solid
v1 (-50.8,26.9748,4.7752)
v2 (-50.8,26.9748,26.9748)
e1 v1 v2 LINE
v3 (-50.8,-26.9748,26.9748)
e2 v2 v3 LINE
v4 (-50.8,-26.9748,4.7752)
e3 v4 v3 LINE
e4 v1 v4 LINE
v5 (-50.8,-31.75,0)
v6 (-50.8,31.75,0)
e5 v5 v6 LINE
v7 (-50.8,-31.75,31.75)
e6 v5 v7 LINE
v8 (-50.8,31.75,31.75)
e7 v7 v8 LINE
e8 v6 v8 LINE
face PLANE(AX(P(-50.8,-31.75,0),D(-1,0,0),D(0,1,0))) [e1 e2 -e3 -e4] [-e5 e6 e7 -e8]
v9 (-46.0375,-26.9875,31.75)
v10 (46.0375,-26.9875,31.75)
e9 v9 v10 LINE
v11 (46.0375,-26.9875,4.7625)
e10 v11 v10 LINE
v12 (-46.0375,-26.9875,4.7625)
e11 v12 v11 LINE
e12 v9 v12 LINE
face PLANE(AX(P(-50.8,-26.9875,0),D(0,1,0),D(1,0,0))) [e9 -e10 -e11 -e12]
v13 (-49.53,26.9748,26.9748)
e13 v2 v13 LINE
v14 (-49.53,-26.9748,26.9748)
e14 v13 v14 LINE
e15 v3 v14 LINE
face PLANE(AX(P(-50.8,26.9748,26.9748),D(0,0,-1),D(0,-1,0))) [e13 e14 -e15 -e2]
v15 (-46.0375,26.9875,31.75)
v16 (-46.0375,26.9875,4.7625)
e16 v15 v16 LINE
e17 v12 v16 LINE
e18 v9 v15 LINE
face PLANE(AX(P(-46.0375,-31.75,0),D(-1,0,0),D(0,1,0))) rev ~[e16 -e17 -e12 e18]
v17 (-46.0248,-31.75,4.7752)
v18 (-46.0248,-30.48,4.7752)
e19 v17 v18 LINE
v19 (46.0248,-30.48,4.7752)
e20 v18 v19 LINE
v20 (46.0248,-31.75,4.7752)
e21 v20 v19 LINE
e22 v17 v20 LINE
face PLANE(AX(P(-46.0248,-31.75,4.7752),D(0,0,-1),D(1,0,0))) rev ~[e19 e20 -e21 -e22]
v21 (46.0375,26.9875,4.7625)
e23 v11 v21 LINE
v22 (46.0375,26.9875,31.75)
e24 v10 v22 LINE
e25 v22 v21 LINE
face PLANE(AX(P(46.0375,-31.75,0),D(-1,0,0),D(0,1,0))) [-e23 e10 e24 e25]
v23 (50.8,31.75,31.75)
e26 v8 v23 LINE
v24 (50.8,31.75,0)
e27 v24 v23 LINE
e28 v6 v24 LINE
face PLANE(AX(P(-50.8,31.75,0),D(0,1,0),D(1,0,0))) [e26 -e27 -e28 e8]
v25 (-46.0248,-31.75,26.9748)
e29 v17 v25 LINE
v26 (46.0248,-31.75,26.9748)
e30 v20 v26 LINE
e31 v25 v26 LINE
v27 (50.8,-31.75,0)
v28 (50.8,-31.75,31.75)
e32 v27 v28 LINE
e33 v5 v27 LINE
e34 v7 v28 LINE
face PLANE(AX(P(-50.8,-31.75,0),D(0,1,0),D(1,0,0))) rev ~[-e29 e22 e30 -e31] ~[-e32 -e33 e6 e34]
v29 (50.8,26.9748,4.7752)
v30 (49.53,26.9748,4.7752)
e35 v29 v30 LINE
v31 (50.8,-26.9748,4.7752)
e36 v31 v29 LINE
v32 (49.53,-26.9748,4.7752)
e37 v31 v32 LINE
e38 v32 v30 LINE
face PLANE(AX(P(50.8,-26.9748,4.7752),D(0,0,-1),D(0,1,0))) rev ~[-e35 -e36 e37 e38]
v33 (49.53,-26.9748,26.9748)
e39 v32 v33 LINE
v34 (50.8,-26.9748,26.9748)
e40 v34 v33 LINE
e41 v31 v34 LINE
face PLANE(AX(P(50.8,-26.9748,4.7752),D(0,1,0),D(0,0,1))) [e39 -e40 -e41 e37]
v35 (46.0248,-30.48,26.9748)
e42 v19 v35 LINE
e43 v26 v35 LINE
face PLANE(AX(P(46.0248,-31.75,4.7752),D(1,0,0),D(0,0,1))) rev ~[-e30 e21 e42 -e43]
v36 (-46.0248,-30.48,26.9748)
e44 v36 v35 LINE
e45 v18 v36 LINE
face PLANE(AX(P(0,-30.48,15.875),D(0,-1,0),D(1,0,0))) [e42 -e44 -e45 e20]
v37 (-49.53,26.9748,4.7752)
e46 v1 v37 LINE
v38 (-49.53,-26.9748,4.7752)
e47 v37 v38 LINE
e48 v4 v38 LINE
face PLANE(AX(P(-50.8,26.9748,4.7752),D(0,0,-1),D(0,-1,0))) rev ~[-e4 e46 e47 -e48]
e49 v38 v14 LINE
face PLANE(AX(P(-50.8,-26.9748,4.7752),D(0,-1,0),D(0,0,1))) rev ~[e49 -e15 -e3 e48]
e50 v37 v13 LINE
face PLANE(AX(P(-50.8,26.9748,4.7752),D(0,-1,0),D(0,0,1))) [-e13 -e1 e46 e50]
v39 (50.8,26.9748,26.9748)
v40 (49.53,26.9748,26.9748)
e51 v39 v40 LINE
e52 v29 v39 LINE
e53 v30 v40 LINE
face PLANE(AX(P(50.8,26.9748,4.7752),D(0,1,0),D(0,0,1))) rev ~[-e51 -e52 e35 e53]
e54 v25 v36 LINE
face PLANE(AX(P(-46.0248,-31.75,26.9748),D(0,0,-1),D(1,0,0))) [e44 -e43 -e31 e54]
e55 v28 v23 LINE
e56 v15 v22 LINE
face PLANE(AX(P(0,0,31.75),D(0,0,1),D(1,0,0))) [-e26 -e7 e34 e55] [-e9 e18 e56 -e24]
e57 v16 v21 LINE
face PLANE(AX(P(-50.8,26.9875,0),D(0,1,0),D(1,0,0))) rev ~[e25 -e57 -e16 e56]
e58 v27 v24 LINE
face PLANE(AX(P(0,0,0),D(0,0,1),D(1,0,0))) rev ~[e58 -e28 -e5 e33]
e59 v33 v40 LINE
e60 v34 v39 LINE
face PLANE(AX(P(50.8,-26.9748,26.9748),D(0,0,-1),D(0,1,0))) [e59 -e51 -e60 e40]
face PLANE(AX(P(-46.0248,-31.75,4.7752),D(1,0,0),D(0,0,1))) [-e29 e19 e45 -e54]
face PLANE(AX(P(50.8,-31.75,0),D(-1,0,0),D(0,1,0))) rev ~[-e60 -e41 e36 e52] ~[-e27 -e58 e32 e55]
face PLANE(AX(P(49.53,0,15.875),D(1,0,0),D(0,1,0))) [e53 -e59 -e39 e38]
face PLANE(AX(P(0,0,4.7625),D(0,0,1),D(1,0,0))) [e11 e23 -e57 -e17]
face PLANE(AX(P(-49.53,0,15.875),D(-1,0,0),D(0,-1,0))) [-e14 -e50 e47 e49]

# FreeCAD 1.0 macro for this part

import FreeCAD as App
import Part
import Sketcher

V = App.Vector
Q = App.Units.Quantity


def faces_at(feature, points):
    """Names of the faces that lie closest to the given points."""
    faces = feature.Shape.Faces
    near = lambda p: min(range(len(faces)), key=lambda i: faces[i].distToShape(Part.Vertex(*p))[0])
    return sorted({f"Face{near(p) + 1}" for p in points})


def add_polygon(sketch, points):
    """Adds a closed chain of lines whose ends are joined by coincident constraints."""
    first, n = sketch.GeometryCount, len(points)
    for a, b in zip(points, points[1:] + points[:1]):
        sketch.addGeometry(Part.LineSegment(App.Vector(*a, 0), App.Vector(*b, 0)), False)
    for i in range(n):
        sketch.addConstraint(Sketcher.Constraint("Coincident", first + i, 2, first + (i + 1) % n, 1))

doc = App.newDocument("Part")
body = doc.addObject("PartDesign::Body", "Body")

sketch1 = doc.addObject("Sketcher::SketchObject", "Sketch")
body.addObject(sketch1)
sketch1.AttachmentSupport = (doc.XY_Plane, [""])
sketch1.MapMode = "FlatFace"
add_polygon(sketch1, [(-50.8, 31.75), (-50.8, -31.75), (50.8, -31.75), (50.8, 31.75)])
sketch1.addConstraint(Sketcher.Constraint("Vertical", 0))
sketch1.addConstraint(Sketcher.Constraint("Horizontal", 1))
sketch1.addConstraint(Sketcher.Constraint("Vertical", 2))
sketch1.addConstraint(Sketcher.Constraint("Horizontal", 3))
sketch1.addConstraint(Sketcher.Constraint("Symmetric", 0, 2, 2, 2, -1, 1))
sketch1.addConstraint(Sketcher.Constraint("DistanceX", 1, 1, 1, 2, Q("4 in")))
sketch1.addConstraint(Sketcher.Constraint("DistanceY", 0, 2, 0, 1, Q("2.5 in")))
pad1 = doc.addObject("PartDesign::Pad", "Pad")
body.addObject(pad1)
pad1.Profile = sketch1
pad1.Length = Q("1.25 in")
doc.recompute()

thickness = doc.addObject("PartDesign::Thickness", "Thickness")
body.addObject(thickness)
thickness.Base = (pad1, faces_at(pad1, [(0, 0, 31.75)]))
thickness.Value = Q("0.1875 in")
thickness.Reversed = True
thickness.Join = "Arc"

sketch2 = doc.addObject("Sketcher::SketchObject", "Sketch001")
body.addObject(sketch2)
sketch2.AttachmentSupport = (doc.YZ_Plane, [""])
sketch2.MapMode = "FlatFace"
sketch2.AttachmentOffset = App.Placement(V(0, 0, 2 * 25.4), App.Rotation())
add_polygon(sketch2, [(-26.9748, 26.9748), (-26.9748, 4.7752), (26.9748, 4.7752), (26.9748, 26.9748)])
sketch2.addConstraint(Sketcher.Constraint("Vertical", 0))
sketch2.addConstraint(Sketcher.Constraint("Horizontal", 1))
sketch2.addConstraint(Sketcher.Constraint("Vertical", 2))
sketch2.addConstraint(Sketcher.Constraint("Horizontal", 3))
sketch2.addConstraint(Sketcher.Constraint("DistanceX", 1, 1, 1, 2, Q("2.124 in")))
sketch2.addConstraint(Sketcher.Constraint("DistanceY", 0, 2, 0, 1, Q("0.874 in")))
sketch2.addConstraint(Sketcher.Constraint("DistanceX", 0, 2, -1, 1, Q("1.062 in")))
sketch2.addConstraint(Sketcher.Constraint("DistanceY", -1, 1, 0, 2, Q("0.188 in")))
pocket1 = doc.addObject("PartDesign::Pocket", "Pocket")
body.addObject(pocket1)
pocket1.Profile = sketch2
pocket1.Length = Q("0.05 in")

sketch3 = doc.addObject("Sketcher::SketchObject", "Sketch002")
body.addObject(sketch3)
sketch3.AttachmentSupport = (doc.XZ_Plane, [""])
sketch3.MapMode = "FlatFace"
sketch3.AttachmentOffset = App.Placement(V(0, 0, 1.25 * 25.4), App.Rotation())
add_polygon(sketch3, [(-46.0248, 26.9748), (-46.0248, 4.7752), (46.0248, 4.7752), (46.0248, 26.9748)])
sketch3.addConstraint(Sketcher.Constraint("Vertical", 0))
sketch3.addConstraint(Sketcher.Constraint("Horizontal", 1))
sketch3.addConstraint(Sketcher.Constraint("Vertical", 2))
sketch3.addConstraint(Sketcher.Constraint("Horizontal", 3))
sketch3.addConstraint(Sketcher.Constraint("DistanceX", 1, 1, 1, 2, Q("3.624 in")))
sketch3.addConstraint(Sketcher.Constraint("DistanceY", 0, 2, 0, 1, Q("0.874 in")))
sketch3.addConstraint(Sketcher.Constraint("DistanceX", 0, 2, -1, 1, Q("1.812 in")))
sketch3.addConstraint(Sketcher.Constraint("DistanceY", -1, 1, 0, 2, Q("0.188 in")))
pocket2 = doc.addObject("PartDesign::Pocket", "Pocket001")
body.addObject(pocket2)
pocket2.Profile = sketch3
pocket2.Length = Q("0.05 in")

sketch4 = doc.addObject("Sketcher::SketchObject", "Sketch003")
body.addObject(sketch4)
sketch4.AttachmentSupport = (doc.YZ_Plane, [""])
sketch4.MapMode = "FlatFace"
sketch4.AttachmentOffset = App.Placement(V(0, 0, -2 * 25.4), App.Rotation())
add_polygon(sketch4, [(26.9748, 26.9748), (26.9748, 4.7752), (-26.9748, 4.7752), (-26.9748, 26.9748)])
sketch4.addConstraint(Sketcher.Constraint("Vertical", 0))
sketch4.addConstraint(Sketcher.Constraint("Horizontal", 1))
sketch4.addConstraint(Sketcher.Constraint("Vertical", 2))
sketch4.addConstraint(Sketcher.Constraint("Horizontal", 3))
sketch4.addConstraint(Sketcher.Constraint("DistanceX", 1, 2, 1, 1, Q("2.124 in")))
sketch4.addConstraint(Sketcher.Constraint("DistanceY", 0, 2, 0, 1, Q("0.874 in")))
sketch4.addConstraint(Sketcher.Constraint("DistanceX", -1, 1, 0, 2, Q("1.062 in")))
sketch4.addConstraint(Sketcher.Constraint("DistanceY", -1, 1, 0, 2, Q("0.188 in")))
pocket3 = doc.addObject("PartDesign::Pocket", "Pocket002")
body.addObject(pocket3)
pocket3.Profile = sketch4
pocket3.Length = Q("0.05 in")
pocket3.Reversed = True

doc.recompute()
